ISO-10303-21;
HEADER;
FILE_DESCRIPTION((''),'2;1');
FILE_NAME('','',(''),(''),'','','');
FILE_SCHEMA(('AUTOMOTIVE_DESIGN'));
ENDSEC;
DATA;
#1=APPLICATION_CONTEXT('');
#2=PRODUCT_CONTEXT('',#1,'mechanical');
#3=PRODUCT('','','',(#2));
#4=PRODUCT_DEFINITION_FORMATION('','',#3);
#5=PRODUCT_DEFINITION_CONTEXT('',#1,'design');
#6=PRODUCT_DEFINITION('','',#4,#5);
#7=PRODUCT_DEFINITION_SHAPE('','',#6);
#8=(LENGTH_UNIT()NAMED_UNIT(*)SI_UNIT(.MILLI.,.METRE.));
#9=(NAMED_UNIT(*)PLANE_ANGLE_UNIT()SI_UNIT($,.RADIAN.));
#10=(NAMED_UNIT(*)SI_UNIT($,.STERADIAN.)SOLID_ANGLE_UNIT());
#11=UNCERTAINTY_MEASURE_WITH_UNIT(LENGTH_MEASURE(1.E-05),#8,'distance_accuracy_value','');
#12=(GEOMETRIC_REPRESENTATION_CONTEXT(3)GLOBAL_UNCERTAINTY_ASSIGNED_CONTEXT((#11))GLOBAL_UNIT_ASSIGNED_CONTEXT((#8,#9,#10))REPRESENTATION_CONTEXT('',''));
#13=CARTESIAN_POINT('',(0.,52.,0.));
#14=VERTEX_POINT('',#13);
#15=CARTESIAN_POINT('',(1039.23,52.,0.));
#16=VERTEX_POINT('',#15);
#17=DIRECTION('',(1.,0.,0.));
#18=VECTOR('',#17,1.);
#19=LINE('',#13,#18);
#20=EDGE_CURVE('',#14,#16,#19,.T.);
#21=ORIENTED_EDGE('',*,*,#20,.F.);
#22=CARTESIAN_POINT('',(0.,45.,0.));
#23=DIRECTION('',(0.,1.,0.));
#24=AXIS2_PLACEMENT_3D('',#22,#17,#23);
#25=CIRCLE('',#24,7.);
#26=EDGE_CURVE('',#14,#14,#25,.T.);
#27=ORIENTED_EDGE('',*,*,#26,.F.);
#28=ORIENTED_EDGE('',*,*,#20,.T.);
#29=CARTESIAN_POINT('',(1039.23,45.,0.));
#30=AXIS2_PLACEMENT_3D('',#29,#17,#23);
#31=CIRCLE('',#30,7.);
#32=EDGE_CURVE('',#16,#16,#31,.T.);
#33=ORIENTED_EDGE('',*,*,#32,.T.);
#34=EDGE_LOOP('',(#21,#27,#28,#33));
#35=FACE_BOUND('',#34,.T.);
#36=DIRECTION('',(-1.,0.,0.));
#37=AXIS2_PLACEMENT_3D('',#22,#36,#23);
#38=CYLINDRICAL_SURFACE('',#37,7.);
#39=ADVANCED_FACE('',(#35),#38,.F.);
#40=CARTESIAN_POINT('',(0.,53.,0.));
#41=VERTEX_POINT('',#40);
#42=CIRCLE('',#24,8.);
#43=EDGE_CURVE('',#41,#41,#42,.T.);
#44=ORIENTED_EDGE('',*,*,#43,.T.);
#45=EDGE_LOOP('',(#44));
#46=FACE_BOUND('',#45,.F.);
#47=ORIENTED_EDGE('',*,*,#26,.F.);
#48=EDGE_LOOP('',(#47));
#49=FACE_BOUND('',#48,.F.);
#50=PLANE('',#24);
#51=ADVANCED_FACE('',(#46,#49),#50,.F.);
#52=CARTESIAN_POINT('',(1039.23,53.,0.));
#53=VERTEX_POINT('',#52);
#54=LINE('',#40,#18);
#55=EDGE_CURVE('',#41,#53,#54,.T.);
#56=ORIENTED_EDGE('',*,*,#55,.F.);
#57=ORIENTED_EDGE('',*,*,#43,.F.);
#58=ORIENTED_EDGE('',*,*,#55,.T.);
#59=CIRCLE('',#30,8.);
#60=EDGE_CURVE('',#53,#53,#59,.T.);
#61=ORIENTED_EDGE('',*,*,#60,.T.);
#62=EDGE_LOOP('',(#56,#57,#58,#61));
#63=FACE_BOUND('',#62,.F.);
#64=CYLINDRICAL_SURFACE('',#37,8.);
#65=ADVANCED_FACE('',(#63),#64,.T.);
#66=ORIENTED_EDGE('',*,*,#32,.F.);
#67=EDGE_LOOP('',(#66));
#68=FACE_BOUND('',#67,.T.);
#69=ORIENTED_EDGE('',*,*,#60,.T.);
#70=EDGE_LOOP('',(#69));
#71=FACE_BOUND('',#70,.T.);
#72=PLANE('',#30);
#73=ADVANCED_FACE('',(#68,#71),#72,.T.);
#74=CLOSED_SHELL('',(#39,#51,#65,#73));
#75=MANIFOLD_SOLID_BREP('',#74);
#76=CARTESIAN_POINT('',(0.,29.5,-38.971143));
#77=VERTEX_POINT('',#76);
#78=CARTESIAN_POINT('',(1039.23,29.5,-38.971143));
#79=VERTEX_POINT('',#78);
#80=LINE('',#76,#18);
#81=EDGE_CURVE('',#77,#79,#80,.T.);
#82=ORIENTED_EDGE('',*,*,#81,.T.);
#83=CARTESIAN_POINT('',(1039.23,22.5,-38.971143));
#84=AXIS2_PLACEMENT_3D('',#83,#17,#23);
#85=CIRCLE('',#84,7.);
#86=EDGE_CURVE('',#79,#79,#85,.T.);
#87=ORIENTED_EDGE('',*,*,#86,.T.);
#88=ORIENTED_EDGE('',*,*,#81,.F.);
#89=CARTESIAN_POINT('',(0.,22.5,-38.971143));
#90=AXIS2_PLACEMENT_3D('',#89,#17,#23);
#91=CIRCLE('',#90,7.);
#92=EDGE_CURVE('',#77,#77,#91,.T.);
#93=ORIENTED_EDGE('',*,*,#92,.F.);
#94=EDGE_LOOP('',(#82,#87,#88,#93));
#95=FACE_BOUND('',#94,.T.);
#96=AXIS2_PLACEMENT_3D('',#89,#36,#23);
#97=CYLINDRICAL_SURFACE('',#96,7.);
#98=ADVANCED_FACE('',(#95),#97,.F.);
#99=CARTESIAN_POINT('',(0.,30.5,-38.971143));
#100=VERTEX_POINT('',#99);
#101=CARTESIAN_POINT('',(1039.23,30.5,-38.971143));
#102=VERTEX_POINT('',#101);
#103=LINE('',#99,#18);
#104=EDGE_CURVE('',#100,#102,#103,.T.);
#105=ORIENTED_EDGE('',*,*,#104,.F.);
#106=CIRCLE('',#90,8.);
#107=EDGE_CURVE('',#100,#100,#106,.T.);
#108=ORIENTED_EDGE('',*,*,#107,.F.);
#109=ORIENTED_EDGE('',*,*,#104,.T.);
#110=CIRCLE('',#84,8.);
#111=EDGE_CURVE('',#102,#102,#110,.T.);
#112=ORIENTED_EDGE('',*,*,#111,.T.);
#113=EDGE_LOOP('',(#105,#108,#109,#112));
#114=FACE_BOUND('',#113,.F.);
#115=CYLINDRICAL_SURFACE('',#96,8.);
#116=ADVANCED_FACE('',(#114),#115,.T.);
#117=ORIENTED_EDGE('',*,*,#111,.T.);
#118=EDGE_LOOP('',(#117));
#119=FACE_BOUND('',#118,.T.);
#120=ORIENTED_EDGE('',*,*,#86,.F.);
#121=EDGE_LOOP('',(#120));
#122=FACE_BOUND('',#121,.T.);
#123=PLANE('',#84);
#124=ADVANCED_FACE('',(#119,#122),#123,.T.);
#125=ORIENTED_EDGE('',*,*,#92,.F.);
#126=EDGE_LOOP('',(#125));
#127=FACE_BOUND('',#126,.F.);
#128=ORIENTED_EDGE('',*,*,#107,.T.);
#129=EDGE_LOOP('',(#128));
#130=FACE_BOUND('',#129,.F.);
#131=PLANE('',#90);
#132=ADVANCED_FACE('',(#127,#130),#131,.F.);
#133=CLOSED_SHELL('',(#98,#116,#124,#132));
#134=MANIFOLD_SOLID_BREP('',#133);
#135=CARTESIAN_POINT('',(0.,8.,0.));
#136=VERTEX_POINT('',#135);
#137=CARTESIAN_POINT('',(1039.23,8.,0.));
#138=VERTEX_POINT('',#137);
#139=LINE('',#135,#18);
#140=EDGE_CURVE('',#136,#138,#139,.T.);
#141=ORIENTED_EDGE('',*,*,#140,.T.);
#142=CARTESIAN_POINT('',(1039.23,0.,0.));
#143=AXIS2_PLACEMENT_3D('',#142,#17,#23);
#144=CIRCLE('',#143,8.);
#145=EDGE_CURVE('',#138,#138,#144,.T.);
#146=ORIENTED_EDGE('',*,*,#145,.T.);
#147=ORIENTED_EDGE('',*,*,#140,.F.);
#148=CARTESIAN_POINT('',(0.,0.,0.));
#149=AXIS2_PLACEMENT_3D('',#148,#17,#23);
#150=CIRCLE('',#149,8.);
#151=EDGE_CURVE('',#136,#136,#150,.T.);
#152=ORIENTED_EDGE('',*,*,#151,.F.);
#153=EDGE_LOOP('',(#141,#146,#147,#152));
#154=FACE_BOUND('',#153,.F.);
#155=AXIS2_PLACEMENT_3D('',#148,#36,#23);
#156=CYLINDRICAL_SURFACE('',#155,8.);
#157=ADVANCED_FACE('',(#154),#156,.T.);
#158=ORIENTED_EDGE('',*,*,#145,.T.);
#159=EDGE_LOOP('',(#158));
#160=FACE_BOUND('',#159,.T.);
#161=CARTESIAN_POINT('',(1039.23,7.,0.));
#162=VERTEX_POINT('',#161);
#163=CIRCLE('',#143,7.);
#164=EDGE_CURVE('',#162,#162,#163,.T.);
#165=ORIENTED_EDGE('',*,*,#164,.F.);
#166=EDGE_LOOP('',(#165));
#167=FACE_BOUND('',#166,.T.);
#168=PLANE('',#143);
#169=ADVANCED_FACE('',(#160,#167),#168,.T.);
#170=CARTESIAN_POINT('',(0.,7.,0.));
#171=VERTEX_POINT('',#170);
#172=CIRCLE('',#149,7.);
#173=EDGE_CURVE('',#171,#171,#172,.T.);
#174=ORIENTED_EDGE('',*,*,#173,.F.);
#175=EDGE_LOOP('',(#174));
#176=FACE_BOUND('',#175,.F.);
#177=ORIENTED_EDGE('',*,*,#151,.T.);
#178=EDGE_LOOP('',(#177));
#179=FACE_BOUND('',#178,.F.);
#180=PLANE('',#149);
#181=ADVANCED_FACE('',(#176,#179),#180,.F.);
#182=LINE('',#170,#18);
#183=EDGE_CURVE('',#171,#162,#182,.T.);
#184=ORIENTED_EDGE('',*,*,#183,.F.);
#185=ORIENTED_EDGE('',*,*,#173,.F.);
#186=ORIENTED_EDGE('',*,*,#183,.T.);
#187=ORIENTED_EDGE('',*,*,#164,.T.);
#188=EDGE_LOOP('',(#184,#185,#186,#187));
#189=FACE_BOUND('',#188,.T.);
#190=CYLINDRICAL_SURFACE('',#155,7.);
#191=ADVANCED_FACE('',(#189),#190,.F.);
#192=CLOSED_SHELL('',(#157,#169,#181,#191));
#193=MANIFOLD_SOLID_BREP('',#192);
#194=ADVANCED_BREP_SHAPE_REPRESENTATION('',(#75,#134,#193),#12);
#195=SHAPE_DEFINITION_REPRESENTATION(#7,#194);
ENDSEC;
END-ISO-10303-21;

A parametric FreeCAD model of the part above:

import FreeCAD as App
import Part
import Sketcher

doc = App.newDocument("Part")
body = doc.addObject("PartDesign::Body", "Body")
body.AllowCompound = True

# Sketch on YZ plane
sketch1 = body.newObject("Sketcher::SketchObject", "Sketch")
sketch1.AttachmentSupport = (doc.getObject("YZ_Plane"), [""])
sketch1.MapMode = "FlatFace"
sketch1.addGeometry(Part.Circle(App.Vector(0, 0, 0), App.Vector(0, 0, 1), 8), False)
sketch1.addGeometry(Part.Circle(App.Vector(0, 0, 0), App.Vector(0, 0, 1), 7), False)
sketch1.addGeometry(Part.Circle(App.Vector(45, 0, 0), App.Vector(0, 0, 1), 8), False)
sketch1.addGeometry(Part.Circle(App.Vector(45, 0, 0), App.Vector(0, 0, 1), 7), False)
sketch1.addGeometry(Part.Circle(App.Vector(22, -39, 0), App.Vector(0, 0, 1), 8), False)
sketch1.addGeometry(Part.Circle(App.Vector(22, -39, 0), App.Vector(0, 0, 1), 7), False)
sketch1.addConstraint(Sketcher.Constraint("Coincident", 0, 3, -1, 1))
sketch1.addConstraint(Sketcher.Constraint("Coincident", 1, 3, -1, 1))
sketch1.addConstraint(Sketcher.Constraint("Coincident", 3, 3, 2, 3))
sketch1.addConstraint(Sketcher.Constraint("Coincident", 5, 3, 4, 3))
sketch1.addConstraint(Sketcher.Constraint("Equal", 0, 2))
sketch1.addConstraint(Sketcher.Constraint("Equal", 1, 3))
sketch1.addConstraint(Sketcher.Constraint("Equal", 2, 4))
sketch1.addConstraint(Sketcher.Constraint("Equal", 3, 5))
sketch1.addConstraint(Sketcher.Constraint("PointOnObject", 2, 3, -1))
sketch1.addConstraint(Sketcher.Constraint("Diameter", 0, 16.0))
sketch1.addConstraint(Sketcher.Constraint("Diameter", 1, 14.0))
sketch1.addConstraint(Sketcher.Constraint("DistanceX", -1, 1, 2, 3, 45.0))
sketch1.addConstraint(Sketcher.Constraint("DistanceX", -1, 1, 4, 3, 22.5))
sketch1.addConstraint(Sketcher.Constraint("DistanceY", 4, 3, -1, 1, 38.971143))
pad1 = body.newObject("PartDesign::Pad", "Pad")
pad1.Profile = sketch1
pad1.Length = 1039.23

doc.recompute()
